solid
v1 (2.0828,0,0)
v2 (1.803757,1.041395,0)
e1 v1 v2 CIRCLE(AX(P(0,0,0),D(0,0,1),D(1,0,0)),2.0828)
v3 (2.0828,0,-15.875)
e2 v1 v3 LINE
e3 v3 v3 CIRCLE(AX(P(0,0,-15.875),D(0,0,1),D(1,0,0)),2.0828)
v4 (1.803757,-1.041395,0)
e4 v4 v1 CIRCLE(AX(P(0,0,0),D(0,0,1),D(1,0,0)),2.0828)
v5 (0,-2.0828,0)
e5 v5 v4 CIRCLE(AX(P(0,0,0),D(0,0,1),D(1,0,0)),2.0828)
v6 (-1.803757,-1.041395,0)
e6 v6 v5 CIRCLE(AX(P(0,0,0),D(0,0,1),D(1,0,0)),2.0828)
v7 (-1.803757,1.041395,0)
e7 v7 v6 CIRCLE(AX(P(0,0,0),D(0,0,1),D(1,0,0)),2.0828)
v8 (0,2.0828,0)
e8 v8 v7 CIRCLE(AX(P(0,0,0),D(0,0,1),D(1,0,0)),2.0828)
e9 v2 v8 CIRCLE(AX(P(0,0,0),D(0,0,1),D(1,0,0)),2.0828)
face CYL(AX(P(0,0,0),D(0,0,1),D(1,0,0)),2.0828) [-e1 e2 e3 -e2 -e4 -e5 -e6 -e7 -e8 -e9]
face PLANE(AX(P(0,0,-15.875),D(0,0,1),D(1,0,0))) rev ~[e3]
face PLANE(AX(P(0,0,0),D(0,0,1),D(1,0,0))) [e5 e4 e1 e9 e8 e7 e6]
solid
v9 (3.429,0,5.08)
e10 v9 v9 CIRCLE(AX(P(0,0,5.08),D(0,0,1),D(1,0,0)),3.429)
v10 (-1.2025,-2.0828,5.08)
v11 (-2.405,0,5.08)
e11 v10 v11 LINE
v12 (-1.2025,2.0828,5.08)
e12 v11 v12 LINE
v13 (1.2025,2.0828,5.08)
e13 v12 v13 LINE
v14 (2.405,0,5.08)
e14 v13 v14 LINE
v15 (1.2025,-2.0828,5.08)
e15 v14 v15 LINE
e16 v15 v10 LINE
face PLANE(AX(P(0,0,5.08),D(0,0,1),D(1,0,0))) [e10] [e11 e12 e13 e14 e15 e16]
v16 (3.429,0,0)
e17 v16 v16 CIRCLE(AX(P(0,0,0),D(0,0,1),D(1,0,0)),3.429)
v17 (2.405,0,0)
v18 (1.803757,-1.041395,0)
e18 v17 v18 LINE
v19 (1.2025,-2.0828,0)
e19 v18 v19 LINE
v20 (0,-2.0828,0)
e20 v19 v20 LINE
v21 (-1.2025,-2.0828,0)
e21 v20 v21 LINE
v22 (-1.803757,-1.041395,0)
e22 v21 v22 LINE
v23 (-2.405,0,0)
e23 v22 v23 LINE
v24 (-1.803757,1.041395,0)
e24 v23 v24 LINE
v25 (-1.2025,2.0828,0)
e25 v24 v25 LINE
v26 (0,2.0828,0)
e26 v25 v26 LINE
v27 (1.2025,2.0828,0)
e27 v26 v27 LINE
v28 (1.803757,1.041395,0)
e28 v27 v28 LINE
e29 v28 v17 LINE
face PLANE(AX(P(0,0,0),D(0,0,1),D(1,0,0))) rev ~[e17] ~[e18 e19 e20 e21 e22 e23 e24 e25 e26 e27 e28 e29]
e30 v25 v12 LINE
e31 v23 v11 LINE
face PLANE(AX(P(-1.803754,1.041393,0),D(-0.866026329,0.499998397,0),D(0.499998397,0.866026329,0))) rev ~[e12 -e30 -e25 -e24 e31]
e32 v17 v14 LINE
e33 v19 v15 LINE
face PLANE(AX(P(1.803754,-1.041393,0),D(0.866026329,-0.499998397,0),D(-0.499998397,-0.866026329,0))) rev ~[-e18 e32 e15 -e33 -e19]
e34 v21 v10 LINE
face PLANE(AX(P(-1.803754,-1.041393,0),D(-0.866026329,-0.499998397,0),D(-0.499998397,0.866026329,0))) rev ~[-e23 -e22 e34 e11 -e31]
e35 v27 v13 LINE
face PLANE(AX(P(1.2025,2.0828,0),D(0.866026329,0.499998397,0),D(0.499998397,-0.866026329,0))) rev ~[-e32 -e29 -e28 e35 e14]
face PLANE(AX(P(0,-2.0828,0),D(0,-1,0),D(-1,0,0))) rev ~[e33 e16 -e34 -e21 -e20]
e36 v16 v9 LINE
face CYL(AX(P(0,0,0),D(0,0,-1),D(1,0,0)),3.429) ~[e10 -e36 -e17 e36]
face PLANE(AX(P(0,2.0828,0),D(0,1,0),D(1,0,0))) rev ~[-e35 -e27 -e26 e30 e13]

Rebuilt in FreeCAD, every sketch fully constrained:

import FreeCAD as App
import Part
import Sketcher
Q = App.Units.Quantity


def add_polygon(sketch, points):
    """Adds a closed chain of lines whose ends are joined by coincident constraints."""
    first, n = sketch.GeometryCount, len(points)
    for a, b in zip(points, points[1:] + points[:1]):
        sketch.addGeometry(Part.LineSegment(App.Vector(*a, 0), App.Vector(*b, 0)), False)
    for i in range(n):
        sketch.addConstraint(Sketcher.Constraint("Coincident", first + i, 2, first + (i + 1) % n, 1))

doc = App.newDocument("Part")
params = doc.addObject("Spreadsheet::Sheet", "Params")
for row, (alias, value) in enumerate([
    ("sketch1_diameter", "0.164 in"),
    ("pad1_length", "0.625 in"),
    ("sketch2_diameter", "0.27 in"),
    ("pad2_length", "0.2 in"),
], start=1):
    params.set(f"A{row}", alias)
    params.set(f"B{row}", "=" + value)
    params.setAlias(f"B{row}", alias)

body = doc.addObject("PartDesign::Body", "Body")
body.AllowCompound = True

# Sketch on XY plane
sketch1 = doc.addObject("Sketcher::SketchObject", "Sketch")
body.addObject(sketch1)
sketch1.AttachmentSupport = (doc.XY_Plane, [""])
sketch1.MapMode = "FlatFace"
sketch1.addGeometry(Part.Circle(App.Vector(0, 0, 0), App.Vector(0, 0, 1), 2.1), False)
sketch1.addConstraint([
    Sketcher.Constraint("Coincident", 0, 3, -1, 1),
    Sketcher.Constraint("Diameter", 0, Q("0.164 in")),
])
sketch1.setExpression("Constraints[1]", "Params.sketch1_diameter")
pad1 = doc.addObject("PartDesign::Pad", "Pad")
body.addObject(pad1)
pad1.Profile = sketch1
pad1.setExpression("Length", "Params.pad1_length")
pad1.Reversed = True

# Sketch on XY plane
sketch2 = doc.addObject("Sketcher::SketchObject", "Sketch001")
body.addObject(sketch2)
sketch2.AttachmentSupport = (doc.XY_Plane, [""])
sketch2.MapMode = "FlatFace"
sketch2.addGeometry(Part.Circle(App.Vector(0, 0, 0), App.Vector(0, 0, 1), 3.4), False)  # 0
add_polygon(sketch2, [(1.2, 2.1), (2.4, 0), (1.2, -2.1), (-1.2, -2.1), (-2.4, 0), (-1.2, 2.1)])  # lines 1-6
sketch2.addConstraint([
    Sketcher.Constraint("Horizontal", 3),
    Sketcher.Constraint("Horizontal", 6),
    Sketcher.Constraint("Coincident", 0, 3, -1, 1),
    Sketcher.Constraint("Symmetric", 1, 2, 4, 2, -1, 1),
    Sketcher.Constraint("Symmetric", 2, 2, 5, 2, -1, 1),
    Sketcher.Constraint("PointOnObject", 1, 2, -1),
    Sketcher.Constraint("Parallel", 1, 4),
    Sketcher.Constraint("Vertical", 3, 2, 5, 2),
    Sketcher.Constraint("Diameter", 0, Q("0.27 in")),
    Sketcher.Constraint("Angle", 1, Q("-60 deg")),
    Sketcher.Constraint("DistanceY", 3, 2, 5, 2, Q("0.164 in")),
    Sketcher.Constraint("DistanceX", 3, 2, 3, 1, 2.405),
])
sketch2.setExpression("Constraints[14]", "Params.sketch2_diameter")
pad2 = doc.addObject("PartDesign::Pad", "Pad001")
body.addObject(pad2)
pad2.Profile = sketch2
pad2.setExpression("Length", "Params.pad2_length")

doc.recompute()
